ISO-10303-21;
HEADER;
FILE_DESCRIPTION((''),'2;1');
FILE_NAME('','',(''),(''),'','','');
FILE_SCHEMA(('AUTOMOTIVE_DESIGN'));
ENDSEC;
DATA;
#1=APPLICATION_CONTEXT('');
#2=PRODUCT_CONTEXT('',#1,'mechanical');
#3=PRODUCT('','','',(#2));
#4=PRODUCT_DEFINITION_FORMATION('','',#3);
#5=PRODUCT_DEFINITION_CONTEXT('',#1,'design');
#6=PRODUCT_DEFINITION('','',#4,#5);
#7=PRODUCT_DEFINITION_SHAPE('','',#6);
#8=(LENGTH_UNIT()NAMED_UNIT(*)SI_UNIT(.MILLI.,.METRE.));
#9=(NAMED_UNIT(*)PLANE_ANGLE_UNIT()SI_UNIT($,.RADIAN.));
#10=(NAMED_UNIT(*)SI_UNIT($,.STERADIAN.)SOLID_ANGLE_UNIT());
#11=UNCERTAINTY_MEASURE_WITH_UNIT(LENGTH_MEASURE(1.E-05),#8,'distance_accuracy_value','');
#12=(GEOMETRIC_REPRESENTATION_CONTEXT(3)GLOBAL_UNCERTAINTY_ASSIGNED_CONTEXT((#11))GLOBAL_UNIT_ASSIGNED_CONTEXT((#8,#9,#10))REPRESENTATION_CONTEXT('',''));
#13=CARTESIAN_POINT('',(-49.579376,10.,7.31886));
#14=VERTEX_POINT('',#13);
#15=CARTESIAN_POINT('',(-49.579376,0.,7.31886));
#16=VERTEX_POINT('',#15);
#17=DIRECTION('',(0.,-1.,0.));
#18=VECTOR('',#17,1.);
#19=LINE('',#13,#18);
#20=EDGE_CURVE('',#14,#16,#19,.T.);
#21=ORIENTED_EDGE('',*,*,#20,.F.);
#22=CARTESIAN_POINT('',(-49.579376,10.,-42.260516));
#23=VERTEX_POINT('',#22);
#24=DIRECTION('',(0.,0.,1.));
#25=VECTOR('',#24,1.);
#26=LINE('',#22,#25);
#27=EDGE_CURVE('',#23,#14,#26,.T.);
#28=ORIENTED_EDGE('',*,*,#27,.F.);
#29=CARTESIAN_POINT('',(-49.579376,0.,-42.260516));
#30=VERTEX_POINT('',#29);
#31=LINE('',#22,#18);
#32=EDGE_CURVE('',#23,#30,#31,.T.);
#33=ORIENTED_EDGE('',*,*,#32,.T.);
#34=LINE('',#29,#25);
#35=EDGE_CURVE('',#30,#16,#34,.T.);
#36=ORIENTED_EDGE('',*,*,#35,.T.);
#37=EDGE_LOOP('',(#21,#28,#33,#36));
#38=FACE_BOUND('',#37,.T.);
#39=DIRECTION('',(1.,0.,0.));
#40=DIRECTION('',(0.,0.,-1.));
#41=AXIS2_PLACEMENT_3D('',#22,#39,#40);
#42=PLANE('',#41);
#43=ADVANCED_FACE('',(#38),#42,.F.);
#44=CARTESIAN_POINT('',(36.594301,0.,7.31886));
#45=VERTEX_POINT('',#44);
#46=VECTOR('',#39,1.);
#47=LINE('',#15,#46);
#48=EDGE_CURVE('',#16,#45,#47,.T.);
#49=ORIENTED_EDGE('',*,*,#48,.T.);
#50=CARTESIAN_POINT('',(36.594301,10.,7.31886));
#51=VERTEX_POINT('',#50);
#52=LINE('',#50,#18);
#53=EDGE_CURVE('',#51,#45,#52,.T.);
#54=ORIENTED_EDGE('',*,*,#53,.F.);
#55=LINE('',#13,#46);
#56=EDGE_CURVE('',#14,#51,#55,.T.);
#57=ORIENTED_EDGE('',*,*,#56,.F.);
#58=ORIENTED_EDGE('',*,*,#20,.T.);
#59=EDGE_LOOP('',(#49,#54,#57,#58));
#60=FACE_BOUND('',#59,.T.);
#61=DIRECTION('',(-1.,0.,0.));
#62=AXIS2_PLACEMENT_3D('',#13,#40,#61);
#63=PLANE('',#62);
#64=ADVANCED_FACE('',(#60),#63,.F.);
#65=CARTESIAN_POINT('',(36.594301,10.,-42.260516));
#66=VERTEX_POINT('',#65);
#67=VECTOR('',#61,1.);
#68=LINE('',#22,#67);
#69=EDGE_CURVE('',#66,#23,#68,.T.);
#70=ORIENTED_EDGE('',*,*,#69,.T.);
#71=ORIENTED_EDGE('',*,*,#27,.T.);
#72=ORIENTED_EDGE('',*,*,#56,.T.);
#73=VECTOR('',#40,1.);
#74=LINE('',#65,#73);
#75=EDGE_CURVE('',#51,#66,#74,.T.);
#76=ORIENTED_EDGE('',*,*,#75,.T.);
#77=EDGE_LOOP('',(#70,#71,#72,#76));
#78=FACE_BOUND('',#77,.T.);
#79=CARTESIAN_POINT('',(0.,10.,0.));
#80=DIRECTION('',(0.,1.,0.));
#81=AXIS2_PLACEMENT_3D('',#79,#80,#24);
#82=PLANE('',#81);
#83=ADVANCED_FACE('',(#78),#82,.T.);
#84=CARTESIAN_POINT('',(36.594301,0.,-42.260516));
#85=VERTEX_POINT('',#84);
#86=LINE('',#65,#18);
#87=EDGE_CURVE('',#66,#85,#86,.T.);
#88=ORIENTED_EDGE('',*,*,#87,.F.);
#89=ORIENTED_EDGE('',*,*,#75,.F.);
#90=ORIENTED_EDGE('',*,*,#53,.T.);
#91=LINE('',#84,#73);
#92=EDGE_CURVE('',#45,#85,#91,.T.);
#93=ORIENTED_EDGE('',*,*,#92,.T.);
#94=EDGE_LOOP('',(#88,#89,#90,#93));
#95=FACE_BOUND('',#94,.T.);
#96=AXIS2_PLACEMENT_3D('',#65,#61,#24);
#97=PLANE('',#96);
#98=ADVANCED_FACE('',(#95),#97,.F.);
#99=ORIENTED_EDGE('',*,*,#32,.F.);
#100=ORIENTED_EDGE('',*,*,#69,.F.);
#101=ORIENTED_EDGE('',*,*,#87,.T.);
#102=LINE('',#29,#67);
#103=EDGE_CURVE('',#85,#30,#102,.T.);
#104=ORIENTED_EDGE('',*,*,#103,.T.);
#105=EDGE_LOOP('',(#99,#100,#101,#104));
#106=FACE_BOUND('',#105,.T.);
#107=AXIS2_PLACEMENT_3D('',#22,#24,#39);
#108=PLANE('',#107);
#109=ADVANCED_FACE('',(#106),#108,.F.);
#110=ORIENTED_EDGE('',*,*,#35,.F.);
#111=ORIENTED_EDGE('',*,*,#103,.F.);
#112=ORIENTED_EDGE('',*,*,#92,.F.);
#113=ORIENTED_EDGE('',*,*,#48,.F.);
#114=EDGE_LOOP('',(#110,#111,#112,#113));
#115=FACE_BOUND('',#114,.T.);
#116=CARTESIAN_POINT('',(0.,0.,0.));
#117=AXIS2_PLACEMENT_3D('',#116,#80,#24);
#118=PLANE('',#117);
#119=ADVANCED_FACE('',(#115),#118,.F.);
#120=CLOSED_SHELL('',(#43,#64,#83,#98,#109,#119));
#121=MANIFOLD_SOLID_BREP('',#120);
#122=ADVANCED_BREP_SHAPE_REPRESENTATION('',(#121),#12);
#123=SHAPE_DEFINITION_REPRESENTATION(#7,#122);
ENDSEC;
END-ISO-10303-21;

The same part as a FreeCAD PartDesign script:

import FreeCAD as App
import Part
import Sketcher
from FreeCAD import Vector

doc = App.newDocument("Part")
body = doc.addObject("PartDesign::Body", "Body")

# Sketch on XZ plane
sketch1 = doc.addObject("Sketcher::SketchObject", "Sketch")
body.addObject(sketch1)
sketch1.AttachmentSupport = (doc.XZ_Plane, [""])
sketch1.MapMode = "FlatFace"
sketch1.addGeometry(Part.LineSegment(Vector(-49.579376, -42.260516, 0), Vector(-49.579376, 7.31886, 0)), False)
sketch1.addGeometry(Part.LineSegment(Vector(-49.579376, 7.31886, 0), Vector(36.594301, 7.31886, 0)), False)
sketch1.addGeometry(Part.LineSegment(Vector(36.594301, 7.31886, 0), Vector(36.594301, -42.260516, 0)), False)
sketch1.addGeometry(Part.LineSegment(Vector(36.594301, -42.260516, 0), Vector(-49.579376, -42.260516, 0)), False)
sketch1.addConstraint(Sketcher.Constraint("Coincident", 0, 2, 1, 1))
sketch1.addConstraint(Sketcher.Constraint("Coincident", 1, 2, 2, 1))
sketch1.addConstraint(Sketcher.Constraint("Coincident", 2, 2, 3, 1))
sketch1.addConstraint(Sketcher.Constraint("Coincident", 3, 2, 0, 1))
sketch1.addConstraint(Sketcher.Constraint("Vertical", 0))
sketch1.addConstraint(Sketcher.Constraint("Horizontal", 1))
sketch1.addConstraint(Sketcher.Constraint("Vertical", 2))
sketch1.addConstraint(Sketcher.Constraint("Horizontal", 3))
sketch1.addConstraint(Sketcher.Constraint("DistanceX", -1, 1, 1, 2, 36.594301))
sketch1.addConstraint(Sketcher.Constraint("DistanceX", 1, 1, 1, 2, 86.173677))
sketch1.addConstraint(Sketcher.Constraint("DistanceY", 0, 1, 0, 2, 49.579376))
sketch1.addConstraint(Sketcher.Constraint("DistanceY", -1, 1, 0, 2, 7.31886))
pad1 = doc.addObject("PartDesign::Pad", "Pad")
body.addObject(pad1)
pad1.Profile = sketch1
pad1.Length = 10
pad1.Reversed = True

doc.recompute()
